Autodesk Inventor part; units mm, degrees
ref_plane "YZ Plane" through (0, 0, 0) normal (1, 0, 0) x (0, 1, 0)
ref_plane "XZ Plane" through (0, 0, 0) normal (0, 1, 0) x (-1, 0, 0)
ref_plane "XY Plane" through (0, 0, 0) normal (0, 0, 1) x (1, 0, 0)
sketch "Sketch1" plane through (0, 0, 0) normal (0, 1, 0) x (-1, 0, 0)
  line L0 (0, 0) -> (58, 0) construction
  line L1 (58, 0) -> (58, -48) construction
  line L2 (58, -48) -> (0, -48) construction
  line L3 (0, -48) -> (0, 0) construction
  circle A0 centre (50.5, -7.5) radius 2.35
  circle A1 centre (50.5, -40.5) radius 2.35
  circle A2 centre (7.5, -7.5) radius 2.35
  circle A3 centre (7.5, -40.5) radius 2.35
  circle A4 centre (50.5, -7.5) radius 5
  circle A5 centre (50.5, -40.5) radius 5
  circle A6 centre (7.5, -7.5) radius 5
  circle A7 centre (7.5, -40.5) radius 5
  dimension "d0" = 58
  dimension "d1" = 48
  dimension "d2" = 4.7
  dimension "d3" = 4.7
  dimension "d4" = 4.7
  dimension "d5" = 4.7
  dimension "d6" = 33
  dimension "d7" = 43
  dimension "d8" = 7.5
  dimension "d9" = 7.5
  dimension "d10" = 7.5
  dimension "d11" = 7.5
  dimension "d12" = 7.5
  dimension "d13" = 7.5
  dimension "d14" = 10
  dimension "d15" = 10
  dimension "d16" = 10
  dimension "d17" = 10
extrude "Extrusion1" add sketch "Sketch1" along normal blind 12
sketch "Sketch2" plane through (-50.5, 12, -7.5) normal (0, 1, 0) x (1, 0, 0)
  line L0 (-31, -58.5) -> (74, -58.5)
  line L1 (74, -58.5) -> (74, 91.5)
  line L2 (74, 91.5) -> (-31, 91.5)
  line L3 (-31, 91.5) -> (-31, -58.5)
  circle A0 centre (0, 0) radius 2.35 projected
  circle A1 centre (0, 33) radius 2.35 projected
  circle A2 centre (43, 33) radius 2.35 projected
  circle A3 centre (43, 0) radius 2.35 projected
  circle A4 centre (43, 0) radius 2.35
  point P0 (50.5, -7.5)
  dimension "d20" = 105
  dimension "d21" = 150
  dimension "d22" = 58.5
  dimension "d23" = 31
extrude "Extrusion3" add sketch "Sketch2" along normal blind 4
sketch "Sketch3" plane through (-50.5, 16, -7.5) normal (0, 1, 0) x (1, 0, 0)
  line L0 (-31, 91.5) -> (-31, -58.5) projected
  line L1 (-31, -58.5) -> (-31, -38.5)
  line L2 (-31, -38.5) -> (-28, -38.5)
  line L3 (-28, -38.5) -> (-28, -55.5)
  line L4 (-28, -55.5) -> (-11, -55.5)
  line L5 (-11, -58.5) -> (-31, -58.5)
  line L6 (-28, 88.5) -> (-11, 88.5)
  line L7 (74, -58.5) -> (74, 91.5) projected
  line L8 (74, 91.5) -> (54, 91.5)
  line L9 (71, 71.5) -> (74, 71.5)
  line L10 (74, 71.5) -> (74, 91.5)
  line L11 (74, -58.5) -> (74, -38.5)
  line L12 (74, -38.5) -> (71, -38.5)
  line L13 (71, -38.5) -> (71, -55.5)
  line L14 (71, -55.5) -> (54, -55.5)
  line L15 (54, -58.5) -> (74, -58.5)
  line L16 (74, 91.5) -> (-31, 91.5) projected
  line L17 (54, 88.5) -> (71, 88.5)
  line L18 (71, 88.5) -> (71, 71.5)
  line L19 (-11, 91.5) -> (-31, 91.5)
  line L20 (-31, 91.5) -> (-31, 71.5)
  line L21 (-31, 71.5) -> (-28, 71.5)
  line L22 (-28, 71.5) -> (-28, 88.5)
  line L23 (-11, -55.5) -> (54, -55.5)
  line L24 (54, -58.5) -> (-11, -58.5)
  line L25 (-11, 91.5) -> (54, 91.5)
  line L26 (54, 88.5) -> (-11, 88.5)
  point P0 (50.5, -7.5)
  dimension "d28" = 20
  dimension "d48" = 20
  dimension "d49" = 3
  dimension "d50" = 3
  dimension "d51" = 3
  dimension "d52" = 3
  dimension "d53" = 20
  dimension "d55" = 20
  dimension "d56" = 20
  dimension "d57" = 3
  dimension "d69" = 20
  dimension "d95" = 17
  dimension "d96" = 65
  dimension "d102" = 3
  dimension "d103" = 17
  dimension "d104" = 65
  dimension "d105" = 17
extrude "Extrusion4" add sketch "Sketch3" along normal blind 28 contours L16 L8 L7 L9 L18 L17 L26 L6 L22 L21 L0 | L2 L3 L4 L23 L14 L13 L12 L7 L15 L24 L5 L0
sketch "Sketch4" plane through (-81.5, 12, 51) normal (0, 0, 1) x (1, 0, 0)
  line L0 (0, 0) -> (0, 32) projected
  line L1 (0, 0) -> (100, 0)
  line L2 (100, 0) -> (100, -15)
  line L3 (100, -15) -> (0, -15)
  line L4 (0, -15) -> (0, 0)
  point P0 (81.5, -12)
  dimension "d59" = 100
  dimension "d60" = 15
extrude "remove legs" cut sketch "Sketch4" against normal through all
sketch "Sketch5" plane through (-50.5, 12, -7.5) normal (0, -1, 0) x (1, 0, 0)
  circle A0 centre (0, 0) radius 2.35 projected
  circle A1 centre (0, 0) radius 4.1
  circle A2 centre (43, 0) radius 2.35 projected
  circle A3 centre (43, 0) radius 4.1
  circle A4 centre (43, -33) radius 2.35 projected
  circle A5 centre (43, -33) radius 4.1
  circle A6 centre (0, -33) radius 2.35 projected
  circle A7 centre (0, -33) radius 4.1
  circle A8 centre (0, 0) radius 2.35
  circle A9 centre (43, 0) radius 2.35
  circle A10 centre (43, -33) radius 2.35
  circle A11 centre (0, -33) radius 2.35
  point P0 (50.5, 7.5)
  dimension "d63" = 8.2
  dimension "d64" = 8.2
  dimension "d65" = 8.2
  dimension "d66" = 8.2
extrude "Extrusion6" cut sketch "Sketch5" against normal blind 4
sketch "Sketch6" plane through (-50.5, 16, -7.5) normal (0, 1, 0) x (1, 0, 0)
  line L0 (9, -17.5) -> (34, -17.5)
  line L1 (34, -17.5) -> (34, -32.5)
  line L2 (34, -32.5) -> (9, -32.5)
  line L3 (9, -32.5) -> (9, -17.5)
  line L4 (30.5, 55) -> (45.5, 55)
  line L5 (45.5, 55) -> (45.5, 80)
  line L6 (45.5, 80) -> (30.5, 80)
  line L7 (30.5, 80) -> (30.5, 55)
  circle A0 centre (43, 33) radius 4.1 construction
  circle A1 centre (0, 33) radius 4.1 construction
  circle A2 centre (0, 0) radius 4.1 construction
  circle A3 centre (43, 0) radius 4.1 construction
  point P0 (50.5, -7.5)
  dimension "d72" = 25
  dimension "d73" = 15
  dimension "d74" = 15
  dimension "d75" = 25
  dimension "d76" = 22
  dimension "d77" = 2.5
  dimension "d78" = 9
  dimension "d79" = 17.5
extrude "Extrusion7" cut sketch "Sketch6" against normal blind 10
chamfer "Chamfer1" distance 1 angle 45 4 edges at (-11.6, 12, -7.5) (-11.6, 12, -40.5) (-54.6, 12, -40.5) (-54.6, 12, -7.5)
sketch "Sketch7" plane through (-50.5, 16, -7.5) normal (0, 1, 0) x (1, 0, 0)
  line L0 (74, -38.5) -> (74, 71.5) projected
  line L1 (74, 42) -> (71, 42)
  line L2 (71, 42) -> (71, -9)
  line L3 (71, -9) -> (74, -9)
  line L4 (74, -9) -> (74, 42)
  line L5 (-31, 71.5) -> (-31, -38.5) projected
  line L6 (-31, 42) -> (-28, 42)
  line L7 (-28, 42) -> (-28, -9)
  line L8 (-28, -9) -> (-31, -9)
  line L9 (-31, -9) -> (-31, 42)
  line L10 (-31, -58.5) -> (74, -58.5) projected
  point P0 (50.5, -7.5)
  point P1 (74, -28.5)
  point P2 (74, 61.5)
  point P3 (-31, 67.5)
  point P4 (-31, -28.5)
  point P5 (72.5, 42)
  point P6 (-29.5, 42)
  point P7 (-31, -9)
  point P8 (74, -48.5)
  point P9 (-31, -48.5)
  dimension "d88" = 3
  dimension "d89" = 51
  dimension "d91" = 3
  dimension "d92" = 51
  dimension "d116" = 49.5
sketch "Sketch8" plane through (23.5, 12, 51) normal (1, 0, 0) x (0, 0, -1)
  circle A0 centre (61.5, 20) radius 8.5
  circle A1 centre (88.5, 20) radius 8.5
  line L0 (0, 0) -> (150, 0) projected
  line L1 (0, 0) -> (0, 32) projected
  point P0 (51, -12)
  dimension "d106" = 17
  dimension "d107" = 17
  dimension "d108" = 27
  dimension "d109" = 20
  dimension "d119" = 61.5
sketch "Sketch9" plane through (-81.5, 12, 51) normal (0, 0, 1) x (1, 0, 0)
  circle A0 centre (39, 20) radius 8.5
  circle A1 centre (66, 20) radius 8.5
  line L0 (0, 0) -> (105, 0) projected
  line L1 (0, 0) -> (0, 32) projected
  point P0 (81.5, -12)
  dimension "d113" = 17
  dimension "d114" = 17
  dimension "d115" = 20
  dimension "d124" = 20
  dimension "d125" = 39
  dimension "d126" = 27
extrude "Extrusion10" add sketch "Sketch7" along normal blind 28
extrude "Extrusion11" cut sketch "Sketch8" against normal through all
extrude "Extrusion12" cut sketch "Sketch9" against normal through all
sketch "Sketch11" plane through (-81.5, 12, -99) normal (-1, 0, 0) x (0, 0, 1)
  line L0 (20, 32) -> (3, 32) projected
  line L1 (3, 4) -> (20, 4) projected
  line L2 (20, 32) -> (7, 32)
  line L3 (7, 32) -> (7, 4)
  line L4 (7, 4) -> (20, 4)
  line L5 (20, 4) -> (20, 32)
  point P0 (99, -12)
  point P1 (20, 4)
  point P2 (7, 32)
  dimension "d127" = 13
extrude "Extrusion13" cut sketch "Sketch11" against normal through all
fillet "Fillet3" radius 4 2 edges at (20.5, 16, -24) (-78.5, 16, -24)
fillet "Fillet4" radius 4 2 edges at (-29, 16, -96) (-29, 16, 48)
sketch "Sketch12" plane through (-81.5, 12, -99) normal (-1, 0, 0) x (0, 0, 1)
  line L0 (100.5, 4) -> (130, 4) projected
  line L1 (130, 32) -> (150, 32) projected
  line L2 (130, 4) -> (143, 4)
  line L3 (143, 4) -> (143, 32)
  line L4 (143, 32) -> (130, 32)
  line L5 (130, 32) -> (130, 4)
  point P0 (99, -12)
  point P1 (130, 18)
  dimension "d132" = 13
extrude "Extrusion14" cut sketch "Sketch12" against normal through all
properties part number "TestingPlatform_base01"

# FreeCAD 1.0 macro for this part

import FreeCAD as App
import Part
import Sketcher
from FreeCAD import Vector


def edges_at(feature, points):
    """Names of the edges that pass closest to the given points."""
    edges = feature.Shape.Edges
    near = lambda p: min(range(len(edges)), key=lambda i: edges[i].distToShape(Part.Vertex(*p))[0])
    return sorted({f"Edge{near(p) + 1}" for p in points})


def add_polygon(sketch, points):
    """Adds a closed chain of lines whose ends are joined by coincident constraints."""
    first, n = sketch.GeometryCount, len(points)
    for a, b in zip(points, points[1:] + points[:1]):
        sketch.addGeometry(Part.LineSegment(App.Vector(*a, 0), App.Vector(*b, 0)), False)
    for i in range(n):
        sketch.addConstraint(Sketcher.Constraint("Coincident", first + i, 2, first + (i + 1) % n, 1))

doc = App.newDocument("Part")
body = doc.addObject("PartDesign::Body", "Body")
body.AllowCompound = True

# Sketch on XZ plane
sketch1 = doc.addObject("Sketcher::SketchObject", "Sketch")
body.addObject(sketch1)
sketch1.AttachmentSupport = (doc.XZ_Plane, [""])
sketch1.MapMode = "FlatFace"
sketch1.addGeometry([
    Part.Circle(Vector(-50.5, -7.5, 0), Vector(0, 0, 1), 5),  # 0
    Part.Circle(Vector(-50.5, -7.5, 0), Vector(0, 0, 1), 2.4),  # 1
    Part.Circle(Vector(-50.5, -40.5, 0), Vector(0, 0, 1), 5),  # 2
    Part.Circle(Vector(-50.5, -40.5, 0), Vector(0, 0, 1), 2.4),  # 3
    Part.Circle(Vector(-7.5, -7.5, 0), Vector(0, 0, 1), 5),  # 4
    Part.Circle(Vector(-7.5, -7.5, 0), Vector(0, 0, 1), 2.4),  # 5
    Part.Circle(Vector(-7.5, -40.5, 0), Vector(0, 0, 1), 5),  # 6
    Part.Circle(Vector(-7.5, -40.5, 0), Vector(0, 0, 1), 2.4),  # 7
], False)
sketch1.addConstraint([
    Sketcher.Constraint("Coincident", 1, 3, 0, 3),
    Sketcher.Constraint("Coincident", 3, 3, 2, 3),
    Sketcher.Constraint("Coincident", 5, 3, 4, 3),
    Sketcher.Constraint("Coincident", 7, 3, 6, 3),
    Sketcher.Constraint("Equal", 0, 2),
    Sketcher.Constraint("Equal", 1, 3),
    Sketcher.Constraint("Equal", 2, 4),
    Sketcher.Constraint("Equal", 3, 5),
    Sketcher.Constraint("Equal", 4, 6),
    Sketcher.Constraint("Equal", 5, 7),
    Sketcher.Constraint("Horizontal", 1, 3, 4, 3),
    Sketcher.Constraint("Horizontal", 3, 3, 6, 3),
    Sketcher.Constraint("Vertical", 1, 3, 2, 3),
    Sketcher.Constraint("Vertical", 5, 3, 6, 3),
    Sketcher.Constraint("Diameter", 0, 10.0),
    Sketcher.Constraint("Diameter", 1, 4.7),
    Sketcher.Constraint("DistanceY", 2, 3, 0, 3, 33.0),
    Sketcher.Constraint("DistanceX", 0, 3, 4, 3, 43.0),
    Sketcher.Constraint("DistanceY", 0, 3, -1, 1, 7.5),
    Sketcher.Constraint("DistanceX", 4, 3, -1, 1, 7.5),
])
pad1 = doc.addObject("PartDesign::Pad", "Pad")
body.addObject(pad1)
pad1.Profile = sketch1
pad1.Length = 12
pad1.Reversed = True

# Sketch on XZ plane
sketch2 = doc.addObject("Sketcher::SketchObject", "Sketch001")
body.addObject(sketch2)
sketch2.AttachmentSupport = (doc.XZ_Plane, [""])
sketch2.MapMode = "FlatFace"
sketch2.AttachmentOffset = App.Placement(Vector(0, 0, -12), App.Rotation())
add_polygon(sketch2, [(-81.5, -99), (-81.5, 51), (23.5, 51), (23.5, -99)])  # lines 0-3
sketch2.addGeometry(Part.Circle(Vector(-50.5, -7.5, 0), Vector(0, 0, 1), 2.4), False)  # 4
sketch2.addGeometry(Part.Circle(Vector(-7.5, -7.5, 0), Vector(0, 0, 1), 2.4), False)  # 5
sketch2.addGeometry(Part.Circle(Vector(-50.5, -40.5, 0), Vector(0, 0, 1), 2.4), False)  # 6
sketch2.addGeometry(Part.Circle(Vector(-7.5, -40.5, 0), Vector(0, 0, 1), 2.4), False)  # 7
sketch2.addConstraint([
    Sketcher.Constraint("Vertical", 0),
    Sketcher.Constraint("Horizontal", 1),
    Sketcher.Constraint("Vertical", 2),
    Sketcher.Constraint("Horizontal", 3),
    Sketcher.Constraint("Equal", 4, 5),
    Sketcher.Constraint("Equal", 5, 6),
    Sketcher.Constraint("Equal", 6, 7),
    Sketcher.Constraint("Horizontal", 4, 3, 5, 3),
    Sketcher.Constraint("Horizontal", 6, 3, 7, 3),
    Sketcher.Constraint("Vertical", 4, 3, 6, 3),
    Sketcher.Constraint("Vertical", 5, 3, 7, 3),
    Sketcher.Constraint("DistanceX", 1, 1, 1, 2, 105.0),
    Sketcher.Constraint("DistanceY", 0, 1, 0, 2, 150.0),
    Sketcher.Constraint("DistanceX", 0, 2, 4, 3, 31.0),
    Sketcher.Constraint("DistanceX", 5, 3, 1, 2, 31.0),
    Sketcher.Constraint("Diameter", 4, 4.7),
    Sketcher.Constraint("DistanceY", 4, 3, 0, 2, 58.5),
    Sketcher.Constraint("DistanceY", 2, 2, 7, 3, 58.5),
    Sketcher.Constraint("DistanceY", -1, 1, 0, 2, 51.0),
    Sketcher.Constraint("DistanceX", 4, 3, -1, 1, 50.5),
])
pad2 = doc.addObject("PartDesign::Pad", "Pad001")
body.addObject(pad2)
pad2.Profile = sketch2
pad2.Length = 4
pad2.Reversed = True

# Sketch on XZ plane
sketch3 = doc.addObject("Sketcher::SketchObject", "Sketch002")
body.addObject(sketch3)
sketch3.AttachmentSupport = (doc.XZ_Plane, [""])
sketch3.MapMode = "FlatFace"
sketch3.AttachmentOffset = App.Placement(Vector(0, 0, -16), App.Rotation())
add_polygon(sketch3, [(23.5, -99), (-81.5, -99), (-81.5, -79), (-78.5, -79), (-78.5, -96), (20.5, -96), (20.5, -79), (23.5, -79)])  # lines 0-7
add_polygon(sketch3, [(-78.5, 31), (-81.5, 31), (-81.5, 51), (23.5, 51), (23.5, 31), (20.5, 31), (20.5, 48), (-78.5, 48)])  # lines 8-15
sketch3.addConstraint([
    Sketcher.Constraint("Horizontal", 0),
    Sketcher.Constraint("Vertical", 1),
    Sketcher.Constraint("Horizontal", 2),
    Sketcher.Constraint("Vertical", 3),
    Sketcher.Constraint("Horizontal", 4),
    Sketcher.Constraint("Vertical", 5),
    Sketcher.Constraint("Horizontal", 6),
    Sketcher.Constraint("Vertical", 7),
    Sketcher.Constraint("Horizontal", 8),
    Sketcher.Constraint("Vertical", 9),
    Sketcher.Constraint("Horizontal", 10),
    Sketcher.Constraint("Vertical", 11),
    Sketcher.Constraint("Horizontal", 12),
    Sketcher.Constraint("Vertical", 13),
    Sketcher.Constraint("Horizontal", 14),
    Sketcher.Constraint("Vertical", 15),
    Sketcher.Constraint("Horizontal", 2, 2, 5, 2),
    Sketcher.Constraint("Horizontal", 8, 2, 11, 2),
    Sketcher.Constraint("Vertical", 1, 2, 8, 2),
    Sketcher.Constraint("Vertical", 7, 2, 10, 2),
    Sketcher.Constraint("Vertical", 5, 2, 12, 2),
    Sketcher.Constraint("Vertical", 3, 2, 14, 2),
    Sketcher.Constraint("Equal", 2, 6),
    Sketcher.Constraint("Equal", 7, 9),
    Sketcher.Constraint("Equal", 5, 13),
    Sketcher.Constraint("DistanceX", 2, 1, 2, 2, 3.0),
    Sketcher.Constraint("DistanceY", 1, 1, 1, 2, 20.0),
    Sketcher.Constraint("DistanceY", 3, 2, 3, 1, 17.0),
    Sketcher.Constraint("DistanceX", 0, 2, 0, 1, 105.0),
    Sketcher.Constraint("DistanceY", 0, 2, -1, 1, 99.0),
    Sketcher.Constraint("DistanceY", -1, 1, 8, 2, 31.0),
    Sketcher.Constraint("DistanceX", 0, 2, -1, 1, 81.5),
])
pad3 = doc.addObject("PartDesign::Pad", "Pad002")
body.addObject(pad3)
pad3.Profile = sketch3
pad3.Length = 28
pad3.Reversed = True

# Sketch on XY plane
sketch4 = doc.addObject("Sketcher::SketchObject", "Sketch003")
body.addObject(sketch4)
sketch4.AttachmentSupport = (doc.XY_Plane, [""])
sketch4.MapMode = "FlatFace"
sketch4.AttachmentOffset = App.Placement(Vector(0, 0, 51), App.Rotation())
add_polygon(sketch4, [(18, 12), (-82, 12), (-82, -3), (18, -3)])  # lines 0-3
sketch4.addConstraint([
    Sketcher.Constraint("Horizontal", 0),
    Sketcher.Constraint("Vertical", 1),
    Sketcher.Constraint("Horizontal", 2),
    Sketcher.Constraint("Vertical", 3),
    Sketcher.Constraint("DistanceX", 0, 2, 0, 1, 100.0),
    Sketcher.Constraint("DistanceY", 1, 2, 1, 1, 15.0),
    Sketcher.Constraint("DistanceY", -1, 1, 0, 2, 12.0),
    Sketcher.Constraint("DistanceX", 0, 2, -1, 1, 81.5),
])
pocket1 = doc.addObject("PartDesign::Pocket", "Pocket")
body.addObject(pocket1)
pocket1.Profile = sketch4
pocket1.Type = "ThroughAll"

# Sketch on XZ plane
sketch5 = doc.addObject("Sketcher::SketchObject", "Sketch004")
body.addObject(sketch5)
sketch5.AttachmentSupport = (doc.XZ_Plane, [""])
sketch5.MapMode = "FlatFace"
sketch5.AttachmentOffset = App.Placement(Vector(0, 0, -12), App.Rotation())
sketch5.addGeometry([
    Part.Circle(Vector(-50.5, -7.5, 0), Vector(0, 0, 1), 4.1),  # 0
    Part.Circle(Vector(-50.5, -7.5, 0), Vector(0, 0, 1), 2.4),  # 1
    Part.Circle(Vector(-7.5, -7.5, 0), Vector(0, 0, 1), 4.1),  # 2
    Part.Circle(Vector(-7.5, -7.5, 0), Vector(0, 0, 1), 2.4),  # 3
    Part.Circle(Vector(-7.5, -40.5, 0), Vector(0, 0, 1), 4.1),  # 4
    Part.Circle(Vector(-7.5, -40.5, 0), Vector(0, 0, 1), 2.4),  # 5
    Part.Circle(Vector(-50.5, -40.5, 0), Vector(0, 0, 1), 4.1),  # 6
    Part.Circle(Vector(-50.5, -40.5, 0), Vector(0, 0, 1), 2.4),  # 7
], False)
sketch5.addConstraint([
    Sketcher.Constraint("Coincident", 1, 3, 0, 3),
    Sketcher.Constraint("Coincident", 3, 3, 2, 3),
    Sketcher.Constraint("Coincident", 5, 3, 4, 3),
    Sketcher.Constraint("Coincident", 7, 3, 6, 3),
    Sketcher.Constraint("Equal", 0, 2),
    Sketcher.Constraint("Equal", 1, 3),
    Sketcher.Constraint("Equal", 2, 4),
    Sketcher.Constraint("Equal", 3, 5),
    Sketcher.Constraint("Equal", 4, 6),
    Sketcher.Constraint("Equal", 5, 7),
    Sketcher.Constraint("Horizontal", 1, 3, 2, 3),
    Sketcher.Constraint("Horizontal", 5, 3, 6, 3),
    Sketcher.Constraint("Vertical", 3, 3, 4, 3),
    Sketcher.Constraint("Vertical", 1, 3, 6, 3),
    Sketcher.Constraint("Diameter", 0, 8.2),
    Sketcher.Constraint("Diameter", 1, 4.7),
    Sketcher.Constraint("DistanceX", 0, 3, 2, 3, 43.0),
    Sketcher.Constraint("DistanceY", 4, 3, 2, 3, 33.0),
    Sketcher.Constraint("DistanceX", 0, 3, -1, 1, 50.5),
    Sketcher.Constraint("DistanceY", 0, 3, -1, 1, 7.5),
])
pocket2 = doc.addObject("PartDesign::Pocket", "Pocket001")
body.addObject(pocket2)
pocket2.Profile = sketch5
pocket2.Length = 4

# Sketch on XZ plane
sketch6 = doc.addObject("Sketcher::SketchObject", "Sketch005")
body.addObject(sketch6)
sketch6.AttachmentSupport = (doc.XZ_Plane, [""])
sketch6.MapMode = "FlatFace"
sketch6.AttachmentOffset = App.Placement(Vector(0, 0, -16), App.Rotation())
add_polygon(sketch6, [(-16, 10), (-42, 10), (-42, 25), (-16, 25)])  # lines 0-3
add_polygon(sketch6, [(-20, -88), (-20, -62), (-5, -62), (-5, -88)])  # lines 4-7
sketch6.addConstraint([
    Sketcher.Constraint("Horizontal", 0),
    Sketcher.Constraint("Vertical", 1),
    Sketcher.Constraint("Horizontal", 2),
    Sketcher.Constraint("Vertical", 3),
    Sketcher.Constraint("Vertical", 4),
    Sketcher.Constraint("Horizontal", 5),
    Sketcher.Constraint("Vertical", 6),
    Sketcher.Constraint("Horizontal", 7),
    Sketcher.Constraint("Equal", 7, 1),
    Sketcher.Constraint("Equal", 2, 4),
    Sketcher.Constraint("DistanceX", 0, 2, 0, 1, 25.0),
    Sketcher.Constraint("DistanceX", 5, 1, 5, 2, 15.0),
    Sketcher.Constraint("DistanceY", -1, 1, 1, 2, 25.0),
    Sketcher.Constraint("DistanceX", 4, 2, -1, 1, 20.0),
    Sketcher.Constraint("DistanceX", 0, 2, -1, 1, 41.5),
    Sketcher.Constraint("DistanceY", 4, 2, -1, 1, 62.5),
])
pocket3 = doc.addObject("PartDesign::Pocket", "Pocket002")
body.addObject(pocket3)
pocket3.Profile = sketch6
pocket3.Length = 10
pocket3.Reversed = True
doc.recompute()

chamfer = doc.addObject("PartDesign::Chamfer", "Chamfer")
body.addObject(chamfer)
chamfer.Base = (pocket3, edges_at(pocket3, [
    (-11.6, 12, -7.5),
    (-11.6, 12, -40.5),
    (-54.6, 12, -40.5),
    (-54.6, 12, -7.5),
]))
chamfer.Size = 1

# Sketch on XZ plane
sketch7 = doc.addObject("Sketcher::SketchObject", "Sketch006")
body.addObject(sketch7)
sketch7.AttachmentSupport = (doc.XZ_Plane, [""])
sketch7.MapMode = "FlatFace"
sketch7.AttachmentOffset = App.Placement(Vector(0, 0, -16), App.Rotation())
add_polygon(sketch7, [(20.5, 1.5), (23.5, 1.5), (23.5, -49.5), (20.5, -49.5)])  # lines 0-3
add_polygon(sketch7, [(-78.5, -49.5), (-81.5, -49.5), (-81.5, 1.5), (-78.5, 1.5)])  # lines 4-7
sketch7.addConstraint([
    Sketcher.Constraint("Horizontal", 0),
    Sketcher.Constraint("Vertical", 1),
    Sketcher.Constraint("Horizontal", 2),
    Sketcher.Constraint("Vertical", 3),
    Sketcher.Constraint("Horizontal", 4),
    Sketcher.Constraint("Vertical", 5),
    Sketcher.Constraint("Horizontal", 6),
    Sketcher.Constraint("Vertical", 7),
    Sketcher.Constraint("Horizontal", 2, 2, 4, 2),
    Sketcher.Constraint("Horizontal", 3, 2, 5, 2),
    Sketcher.Constraint("Equal", 2, 4),
    Sketcher.Constraint("DistanceX", 0, 1, 0, 2, 3.0),
    Sketcher.Constraint("DistanceY", 1, 2, 1, 1, 51.0),
    Sketcher.Constraint("DistanceY", 1, 2, -1, 1, 49.5),
    Sketcher.Constraint("DistanceX", 4, 2, 2, 2, 102.0),
    Sketcher.Constraint("DistanceX", -1, 1, 0, 2, 23.5),
])
pad4 = doc.addObject("PartDesign::Pad", "Pad003")
body.addObject(pad4)
pad4.Profile = sketch7
pad4.Length = 28
pad4.Reversed = True

# Sketch on YZ plane
sketch8 = doc.addObject("Sketcher::SketchObject", "Sketch007")
body.addObject(sketch8)
sketch8.AttachmentSupport = (doc.YZ_Plane, [""])
sketch8.MapMode = "FlatFace"
sketch8.AttachmentOffset = App.Placement(Vector(0, 0, 23.5), App.Rotation())
sketch8.addGeometry([
    Part.Circle(Vector(32, -10, 0), Vector(0, 0, 1), 8),
    Part.Circle(Vector(32, -38, 0), Vector(0, 0, 1), 8),
], False)
sketch8.addConstraint([
    Sketcher.Constraint("Equal", 0, 1),
    Sketcher.Constraint("Vertical", 0, 3, 1, 3),
    Sketcher.Constraint("Diameter", 0, 17.0),
    Sketcher.Constraint("DistanceY", 1, 3, 0, 3, 27.0),
    Sketcher.Constraint("DistanceX", -1, 1, 0, 3, 32.0),
    Sketcher.Constraint("DistanceY", 0, 3, -1, 1, 10.5),
])
pocket4 = doc.addObject("PartDesign::Pocket", "Pocket003")
body.addObject(pocket4)
pocket4.Profile = sketch8
pocket4.Type = "ThroughAll"

# Sketch on XY plane
sketch9 = doc.addObject("Sketcher::SketchObject", "Sketch008")
body.addObject(sketch9)
sketch9.AttachmentSupport = (doc.XY_Plane, [""])
sketch9.MapMode = "FlatFace"
sketch9.AttachmentOffset = App.Placement(Vector(0, 0, 51), App.Rotation())
sketch9.addGeometry([
    Part.Circle(Vector(-42, 32, 0), Vector(0, 0, 1), 8),
    Part.Circle(Vector(-16, 32, 0), Vector(0, 0, 1), 8),
], False)
sketch9.addConstraint([
    Sketcher.Constraint("Equal", 0, 1),
    Sketcher.Constraint("Horizontal", 0, 3, 1, 3),
    Sketcher.Constraint("Diameter", 0, 17.0),
    Sketcher.Constraint("DistanceX", 0, 3, 1, 3, 27.0),
    Sketcher.Constraint("DistanceY", -1, 1, 0, 3, 32.0),
    Sketcher.Constraint("DistanceX", 0, 3, -1, 1, 42.5),
])
pocket5 = doc.addObject("PartDesign::Pocket", "Pocket004")
body.addObject(pocket5)
pocket5.Profile = sketch9
pocket5.Type = "ThroughAll"

# Sketch on YZ plane
sketch10 = doc.addObject("Sketcher::SketchObject", "Sketch009")
body.addObject(sketch10)
sketch10.AttachmentSupport = (doc.YZ_Plane, [""])
sketch10.MapMode = "FlatFace"
sketch10.AttachmentOffset = App.Placement(Vector(0, 0, -81.5), App.Rotation())
add_polygon(sketch10, [(16, -79), (44, -79), (44, -92), (16, -92)])  # lines 0-3
sketch10.addConstraint([
    Sketcher.Constraint("Horizontal", 0),
    Sketcher.Constraint("Vertical", 1),
    Sketcher.Constraint("Horizontal", 2),
    Sketcher.Constraint("Vertical", 3),
    Sketcher.Constraint("DistanceY", 1, 2, 1, 1, 13.0),
    Sketcher.Constraint("DistanceX", 0, 1, 0, 2, 28.0),
    Sketcher.Constraint("DistanceX", -1, 1, 0, 2, 44.0),
    Sketcher.Constraint("DistanceY", 0, 2, -1, 1, 79.0),
])
pocket6 = doc.addObject("PartDesign::Pocket", "Pocket005")
body.addObject(pocket6)
pocket6.Profile = sketch10
pocket6.Type = "ThroughAll"
pocket6.Reversed = True
doc.recompute()

fillet = doc.addObject("PartDesign::Fillet", "Fillet")
body.addObject(fillet)
fillet.Base = (pocket6, edges_at(pocket6, [(20.5, 16, -24), (-78.5, 16, -24)]))
fillet.Radius = 4
doc.recompute()

fillet2 = doc.addObject("PartDesign::Fillet", "Fillet001")
body.addObject(fillet2)
fillet2.Base = (fillet, edges_at(fillet, [(-29, 16, -96), (-29, 16, 48)]))
fillet2.Radius = 4

# Sketch on YZ plane
sketch11 = doc.addObject("Sketcher::SketchObject", "Sketch010")
body.addObject(sketch11)
sketch11.AttachmentSupport = (doc.YZ_Plane, [""])
sketch11.MapMode = "FlatFace"
sketch11.AttachmentOffset = App.Placement(Vector(0, 0, -81.5), App.Rotation())
add_polygon(sketch11, [(44, 44), (44, 31), (16, 31), (16, 44)])  # lines 0-3
sketch11.addConstraint([
    Sketcher.Constraint("Vertical", 0),
    Sketcher.Constraint("Horizontal", 1),
    Sketcher.Constraint("Vertical", 2),
    Sketcher.Constraint("Horizontal", 3),
    Sketcher.Constraint("DistanceY", 0, 2, 0, 1, 13.0),
    Sketcher.Constraint("DistanceX", 1, 2, 1, 1, 28.0),
    Sketcher.Constraint("DistanceX", -1, 1, 0, 2, 44.0),
    Sketcher.Constraint("DistanceY", -1, 1, 0, 2, 31.0),
])
pocket7 = doc.addObject("PartDesign::Pocket", "Pocket006")
body.addObject(pocket7)
pocket7.Profile = sketch11
pocket7.Type = "ThroughAll"
pocket7.Reversed = True

doc.recompute()
